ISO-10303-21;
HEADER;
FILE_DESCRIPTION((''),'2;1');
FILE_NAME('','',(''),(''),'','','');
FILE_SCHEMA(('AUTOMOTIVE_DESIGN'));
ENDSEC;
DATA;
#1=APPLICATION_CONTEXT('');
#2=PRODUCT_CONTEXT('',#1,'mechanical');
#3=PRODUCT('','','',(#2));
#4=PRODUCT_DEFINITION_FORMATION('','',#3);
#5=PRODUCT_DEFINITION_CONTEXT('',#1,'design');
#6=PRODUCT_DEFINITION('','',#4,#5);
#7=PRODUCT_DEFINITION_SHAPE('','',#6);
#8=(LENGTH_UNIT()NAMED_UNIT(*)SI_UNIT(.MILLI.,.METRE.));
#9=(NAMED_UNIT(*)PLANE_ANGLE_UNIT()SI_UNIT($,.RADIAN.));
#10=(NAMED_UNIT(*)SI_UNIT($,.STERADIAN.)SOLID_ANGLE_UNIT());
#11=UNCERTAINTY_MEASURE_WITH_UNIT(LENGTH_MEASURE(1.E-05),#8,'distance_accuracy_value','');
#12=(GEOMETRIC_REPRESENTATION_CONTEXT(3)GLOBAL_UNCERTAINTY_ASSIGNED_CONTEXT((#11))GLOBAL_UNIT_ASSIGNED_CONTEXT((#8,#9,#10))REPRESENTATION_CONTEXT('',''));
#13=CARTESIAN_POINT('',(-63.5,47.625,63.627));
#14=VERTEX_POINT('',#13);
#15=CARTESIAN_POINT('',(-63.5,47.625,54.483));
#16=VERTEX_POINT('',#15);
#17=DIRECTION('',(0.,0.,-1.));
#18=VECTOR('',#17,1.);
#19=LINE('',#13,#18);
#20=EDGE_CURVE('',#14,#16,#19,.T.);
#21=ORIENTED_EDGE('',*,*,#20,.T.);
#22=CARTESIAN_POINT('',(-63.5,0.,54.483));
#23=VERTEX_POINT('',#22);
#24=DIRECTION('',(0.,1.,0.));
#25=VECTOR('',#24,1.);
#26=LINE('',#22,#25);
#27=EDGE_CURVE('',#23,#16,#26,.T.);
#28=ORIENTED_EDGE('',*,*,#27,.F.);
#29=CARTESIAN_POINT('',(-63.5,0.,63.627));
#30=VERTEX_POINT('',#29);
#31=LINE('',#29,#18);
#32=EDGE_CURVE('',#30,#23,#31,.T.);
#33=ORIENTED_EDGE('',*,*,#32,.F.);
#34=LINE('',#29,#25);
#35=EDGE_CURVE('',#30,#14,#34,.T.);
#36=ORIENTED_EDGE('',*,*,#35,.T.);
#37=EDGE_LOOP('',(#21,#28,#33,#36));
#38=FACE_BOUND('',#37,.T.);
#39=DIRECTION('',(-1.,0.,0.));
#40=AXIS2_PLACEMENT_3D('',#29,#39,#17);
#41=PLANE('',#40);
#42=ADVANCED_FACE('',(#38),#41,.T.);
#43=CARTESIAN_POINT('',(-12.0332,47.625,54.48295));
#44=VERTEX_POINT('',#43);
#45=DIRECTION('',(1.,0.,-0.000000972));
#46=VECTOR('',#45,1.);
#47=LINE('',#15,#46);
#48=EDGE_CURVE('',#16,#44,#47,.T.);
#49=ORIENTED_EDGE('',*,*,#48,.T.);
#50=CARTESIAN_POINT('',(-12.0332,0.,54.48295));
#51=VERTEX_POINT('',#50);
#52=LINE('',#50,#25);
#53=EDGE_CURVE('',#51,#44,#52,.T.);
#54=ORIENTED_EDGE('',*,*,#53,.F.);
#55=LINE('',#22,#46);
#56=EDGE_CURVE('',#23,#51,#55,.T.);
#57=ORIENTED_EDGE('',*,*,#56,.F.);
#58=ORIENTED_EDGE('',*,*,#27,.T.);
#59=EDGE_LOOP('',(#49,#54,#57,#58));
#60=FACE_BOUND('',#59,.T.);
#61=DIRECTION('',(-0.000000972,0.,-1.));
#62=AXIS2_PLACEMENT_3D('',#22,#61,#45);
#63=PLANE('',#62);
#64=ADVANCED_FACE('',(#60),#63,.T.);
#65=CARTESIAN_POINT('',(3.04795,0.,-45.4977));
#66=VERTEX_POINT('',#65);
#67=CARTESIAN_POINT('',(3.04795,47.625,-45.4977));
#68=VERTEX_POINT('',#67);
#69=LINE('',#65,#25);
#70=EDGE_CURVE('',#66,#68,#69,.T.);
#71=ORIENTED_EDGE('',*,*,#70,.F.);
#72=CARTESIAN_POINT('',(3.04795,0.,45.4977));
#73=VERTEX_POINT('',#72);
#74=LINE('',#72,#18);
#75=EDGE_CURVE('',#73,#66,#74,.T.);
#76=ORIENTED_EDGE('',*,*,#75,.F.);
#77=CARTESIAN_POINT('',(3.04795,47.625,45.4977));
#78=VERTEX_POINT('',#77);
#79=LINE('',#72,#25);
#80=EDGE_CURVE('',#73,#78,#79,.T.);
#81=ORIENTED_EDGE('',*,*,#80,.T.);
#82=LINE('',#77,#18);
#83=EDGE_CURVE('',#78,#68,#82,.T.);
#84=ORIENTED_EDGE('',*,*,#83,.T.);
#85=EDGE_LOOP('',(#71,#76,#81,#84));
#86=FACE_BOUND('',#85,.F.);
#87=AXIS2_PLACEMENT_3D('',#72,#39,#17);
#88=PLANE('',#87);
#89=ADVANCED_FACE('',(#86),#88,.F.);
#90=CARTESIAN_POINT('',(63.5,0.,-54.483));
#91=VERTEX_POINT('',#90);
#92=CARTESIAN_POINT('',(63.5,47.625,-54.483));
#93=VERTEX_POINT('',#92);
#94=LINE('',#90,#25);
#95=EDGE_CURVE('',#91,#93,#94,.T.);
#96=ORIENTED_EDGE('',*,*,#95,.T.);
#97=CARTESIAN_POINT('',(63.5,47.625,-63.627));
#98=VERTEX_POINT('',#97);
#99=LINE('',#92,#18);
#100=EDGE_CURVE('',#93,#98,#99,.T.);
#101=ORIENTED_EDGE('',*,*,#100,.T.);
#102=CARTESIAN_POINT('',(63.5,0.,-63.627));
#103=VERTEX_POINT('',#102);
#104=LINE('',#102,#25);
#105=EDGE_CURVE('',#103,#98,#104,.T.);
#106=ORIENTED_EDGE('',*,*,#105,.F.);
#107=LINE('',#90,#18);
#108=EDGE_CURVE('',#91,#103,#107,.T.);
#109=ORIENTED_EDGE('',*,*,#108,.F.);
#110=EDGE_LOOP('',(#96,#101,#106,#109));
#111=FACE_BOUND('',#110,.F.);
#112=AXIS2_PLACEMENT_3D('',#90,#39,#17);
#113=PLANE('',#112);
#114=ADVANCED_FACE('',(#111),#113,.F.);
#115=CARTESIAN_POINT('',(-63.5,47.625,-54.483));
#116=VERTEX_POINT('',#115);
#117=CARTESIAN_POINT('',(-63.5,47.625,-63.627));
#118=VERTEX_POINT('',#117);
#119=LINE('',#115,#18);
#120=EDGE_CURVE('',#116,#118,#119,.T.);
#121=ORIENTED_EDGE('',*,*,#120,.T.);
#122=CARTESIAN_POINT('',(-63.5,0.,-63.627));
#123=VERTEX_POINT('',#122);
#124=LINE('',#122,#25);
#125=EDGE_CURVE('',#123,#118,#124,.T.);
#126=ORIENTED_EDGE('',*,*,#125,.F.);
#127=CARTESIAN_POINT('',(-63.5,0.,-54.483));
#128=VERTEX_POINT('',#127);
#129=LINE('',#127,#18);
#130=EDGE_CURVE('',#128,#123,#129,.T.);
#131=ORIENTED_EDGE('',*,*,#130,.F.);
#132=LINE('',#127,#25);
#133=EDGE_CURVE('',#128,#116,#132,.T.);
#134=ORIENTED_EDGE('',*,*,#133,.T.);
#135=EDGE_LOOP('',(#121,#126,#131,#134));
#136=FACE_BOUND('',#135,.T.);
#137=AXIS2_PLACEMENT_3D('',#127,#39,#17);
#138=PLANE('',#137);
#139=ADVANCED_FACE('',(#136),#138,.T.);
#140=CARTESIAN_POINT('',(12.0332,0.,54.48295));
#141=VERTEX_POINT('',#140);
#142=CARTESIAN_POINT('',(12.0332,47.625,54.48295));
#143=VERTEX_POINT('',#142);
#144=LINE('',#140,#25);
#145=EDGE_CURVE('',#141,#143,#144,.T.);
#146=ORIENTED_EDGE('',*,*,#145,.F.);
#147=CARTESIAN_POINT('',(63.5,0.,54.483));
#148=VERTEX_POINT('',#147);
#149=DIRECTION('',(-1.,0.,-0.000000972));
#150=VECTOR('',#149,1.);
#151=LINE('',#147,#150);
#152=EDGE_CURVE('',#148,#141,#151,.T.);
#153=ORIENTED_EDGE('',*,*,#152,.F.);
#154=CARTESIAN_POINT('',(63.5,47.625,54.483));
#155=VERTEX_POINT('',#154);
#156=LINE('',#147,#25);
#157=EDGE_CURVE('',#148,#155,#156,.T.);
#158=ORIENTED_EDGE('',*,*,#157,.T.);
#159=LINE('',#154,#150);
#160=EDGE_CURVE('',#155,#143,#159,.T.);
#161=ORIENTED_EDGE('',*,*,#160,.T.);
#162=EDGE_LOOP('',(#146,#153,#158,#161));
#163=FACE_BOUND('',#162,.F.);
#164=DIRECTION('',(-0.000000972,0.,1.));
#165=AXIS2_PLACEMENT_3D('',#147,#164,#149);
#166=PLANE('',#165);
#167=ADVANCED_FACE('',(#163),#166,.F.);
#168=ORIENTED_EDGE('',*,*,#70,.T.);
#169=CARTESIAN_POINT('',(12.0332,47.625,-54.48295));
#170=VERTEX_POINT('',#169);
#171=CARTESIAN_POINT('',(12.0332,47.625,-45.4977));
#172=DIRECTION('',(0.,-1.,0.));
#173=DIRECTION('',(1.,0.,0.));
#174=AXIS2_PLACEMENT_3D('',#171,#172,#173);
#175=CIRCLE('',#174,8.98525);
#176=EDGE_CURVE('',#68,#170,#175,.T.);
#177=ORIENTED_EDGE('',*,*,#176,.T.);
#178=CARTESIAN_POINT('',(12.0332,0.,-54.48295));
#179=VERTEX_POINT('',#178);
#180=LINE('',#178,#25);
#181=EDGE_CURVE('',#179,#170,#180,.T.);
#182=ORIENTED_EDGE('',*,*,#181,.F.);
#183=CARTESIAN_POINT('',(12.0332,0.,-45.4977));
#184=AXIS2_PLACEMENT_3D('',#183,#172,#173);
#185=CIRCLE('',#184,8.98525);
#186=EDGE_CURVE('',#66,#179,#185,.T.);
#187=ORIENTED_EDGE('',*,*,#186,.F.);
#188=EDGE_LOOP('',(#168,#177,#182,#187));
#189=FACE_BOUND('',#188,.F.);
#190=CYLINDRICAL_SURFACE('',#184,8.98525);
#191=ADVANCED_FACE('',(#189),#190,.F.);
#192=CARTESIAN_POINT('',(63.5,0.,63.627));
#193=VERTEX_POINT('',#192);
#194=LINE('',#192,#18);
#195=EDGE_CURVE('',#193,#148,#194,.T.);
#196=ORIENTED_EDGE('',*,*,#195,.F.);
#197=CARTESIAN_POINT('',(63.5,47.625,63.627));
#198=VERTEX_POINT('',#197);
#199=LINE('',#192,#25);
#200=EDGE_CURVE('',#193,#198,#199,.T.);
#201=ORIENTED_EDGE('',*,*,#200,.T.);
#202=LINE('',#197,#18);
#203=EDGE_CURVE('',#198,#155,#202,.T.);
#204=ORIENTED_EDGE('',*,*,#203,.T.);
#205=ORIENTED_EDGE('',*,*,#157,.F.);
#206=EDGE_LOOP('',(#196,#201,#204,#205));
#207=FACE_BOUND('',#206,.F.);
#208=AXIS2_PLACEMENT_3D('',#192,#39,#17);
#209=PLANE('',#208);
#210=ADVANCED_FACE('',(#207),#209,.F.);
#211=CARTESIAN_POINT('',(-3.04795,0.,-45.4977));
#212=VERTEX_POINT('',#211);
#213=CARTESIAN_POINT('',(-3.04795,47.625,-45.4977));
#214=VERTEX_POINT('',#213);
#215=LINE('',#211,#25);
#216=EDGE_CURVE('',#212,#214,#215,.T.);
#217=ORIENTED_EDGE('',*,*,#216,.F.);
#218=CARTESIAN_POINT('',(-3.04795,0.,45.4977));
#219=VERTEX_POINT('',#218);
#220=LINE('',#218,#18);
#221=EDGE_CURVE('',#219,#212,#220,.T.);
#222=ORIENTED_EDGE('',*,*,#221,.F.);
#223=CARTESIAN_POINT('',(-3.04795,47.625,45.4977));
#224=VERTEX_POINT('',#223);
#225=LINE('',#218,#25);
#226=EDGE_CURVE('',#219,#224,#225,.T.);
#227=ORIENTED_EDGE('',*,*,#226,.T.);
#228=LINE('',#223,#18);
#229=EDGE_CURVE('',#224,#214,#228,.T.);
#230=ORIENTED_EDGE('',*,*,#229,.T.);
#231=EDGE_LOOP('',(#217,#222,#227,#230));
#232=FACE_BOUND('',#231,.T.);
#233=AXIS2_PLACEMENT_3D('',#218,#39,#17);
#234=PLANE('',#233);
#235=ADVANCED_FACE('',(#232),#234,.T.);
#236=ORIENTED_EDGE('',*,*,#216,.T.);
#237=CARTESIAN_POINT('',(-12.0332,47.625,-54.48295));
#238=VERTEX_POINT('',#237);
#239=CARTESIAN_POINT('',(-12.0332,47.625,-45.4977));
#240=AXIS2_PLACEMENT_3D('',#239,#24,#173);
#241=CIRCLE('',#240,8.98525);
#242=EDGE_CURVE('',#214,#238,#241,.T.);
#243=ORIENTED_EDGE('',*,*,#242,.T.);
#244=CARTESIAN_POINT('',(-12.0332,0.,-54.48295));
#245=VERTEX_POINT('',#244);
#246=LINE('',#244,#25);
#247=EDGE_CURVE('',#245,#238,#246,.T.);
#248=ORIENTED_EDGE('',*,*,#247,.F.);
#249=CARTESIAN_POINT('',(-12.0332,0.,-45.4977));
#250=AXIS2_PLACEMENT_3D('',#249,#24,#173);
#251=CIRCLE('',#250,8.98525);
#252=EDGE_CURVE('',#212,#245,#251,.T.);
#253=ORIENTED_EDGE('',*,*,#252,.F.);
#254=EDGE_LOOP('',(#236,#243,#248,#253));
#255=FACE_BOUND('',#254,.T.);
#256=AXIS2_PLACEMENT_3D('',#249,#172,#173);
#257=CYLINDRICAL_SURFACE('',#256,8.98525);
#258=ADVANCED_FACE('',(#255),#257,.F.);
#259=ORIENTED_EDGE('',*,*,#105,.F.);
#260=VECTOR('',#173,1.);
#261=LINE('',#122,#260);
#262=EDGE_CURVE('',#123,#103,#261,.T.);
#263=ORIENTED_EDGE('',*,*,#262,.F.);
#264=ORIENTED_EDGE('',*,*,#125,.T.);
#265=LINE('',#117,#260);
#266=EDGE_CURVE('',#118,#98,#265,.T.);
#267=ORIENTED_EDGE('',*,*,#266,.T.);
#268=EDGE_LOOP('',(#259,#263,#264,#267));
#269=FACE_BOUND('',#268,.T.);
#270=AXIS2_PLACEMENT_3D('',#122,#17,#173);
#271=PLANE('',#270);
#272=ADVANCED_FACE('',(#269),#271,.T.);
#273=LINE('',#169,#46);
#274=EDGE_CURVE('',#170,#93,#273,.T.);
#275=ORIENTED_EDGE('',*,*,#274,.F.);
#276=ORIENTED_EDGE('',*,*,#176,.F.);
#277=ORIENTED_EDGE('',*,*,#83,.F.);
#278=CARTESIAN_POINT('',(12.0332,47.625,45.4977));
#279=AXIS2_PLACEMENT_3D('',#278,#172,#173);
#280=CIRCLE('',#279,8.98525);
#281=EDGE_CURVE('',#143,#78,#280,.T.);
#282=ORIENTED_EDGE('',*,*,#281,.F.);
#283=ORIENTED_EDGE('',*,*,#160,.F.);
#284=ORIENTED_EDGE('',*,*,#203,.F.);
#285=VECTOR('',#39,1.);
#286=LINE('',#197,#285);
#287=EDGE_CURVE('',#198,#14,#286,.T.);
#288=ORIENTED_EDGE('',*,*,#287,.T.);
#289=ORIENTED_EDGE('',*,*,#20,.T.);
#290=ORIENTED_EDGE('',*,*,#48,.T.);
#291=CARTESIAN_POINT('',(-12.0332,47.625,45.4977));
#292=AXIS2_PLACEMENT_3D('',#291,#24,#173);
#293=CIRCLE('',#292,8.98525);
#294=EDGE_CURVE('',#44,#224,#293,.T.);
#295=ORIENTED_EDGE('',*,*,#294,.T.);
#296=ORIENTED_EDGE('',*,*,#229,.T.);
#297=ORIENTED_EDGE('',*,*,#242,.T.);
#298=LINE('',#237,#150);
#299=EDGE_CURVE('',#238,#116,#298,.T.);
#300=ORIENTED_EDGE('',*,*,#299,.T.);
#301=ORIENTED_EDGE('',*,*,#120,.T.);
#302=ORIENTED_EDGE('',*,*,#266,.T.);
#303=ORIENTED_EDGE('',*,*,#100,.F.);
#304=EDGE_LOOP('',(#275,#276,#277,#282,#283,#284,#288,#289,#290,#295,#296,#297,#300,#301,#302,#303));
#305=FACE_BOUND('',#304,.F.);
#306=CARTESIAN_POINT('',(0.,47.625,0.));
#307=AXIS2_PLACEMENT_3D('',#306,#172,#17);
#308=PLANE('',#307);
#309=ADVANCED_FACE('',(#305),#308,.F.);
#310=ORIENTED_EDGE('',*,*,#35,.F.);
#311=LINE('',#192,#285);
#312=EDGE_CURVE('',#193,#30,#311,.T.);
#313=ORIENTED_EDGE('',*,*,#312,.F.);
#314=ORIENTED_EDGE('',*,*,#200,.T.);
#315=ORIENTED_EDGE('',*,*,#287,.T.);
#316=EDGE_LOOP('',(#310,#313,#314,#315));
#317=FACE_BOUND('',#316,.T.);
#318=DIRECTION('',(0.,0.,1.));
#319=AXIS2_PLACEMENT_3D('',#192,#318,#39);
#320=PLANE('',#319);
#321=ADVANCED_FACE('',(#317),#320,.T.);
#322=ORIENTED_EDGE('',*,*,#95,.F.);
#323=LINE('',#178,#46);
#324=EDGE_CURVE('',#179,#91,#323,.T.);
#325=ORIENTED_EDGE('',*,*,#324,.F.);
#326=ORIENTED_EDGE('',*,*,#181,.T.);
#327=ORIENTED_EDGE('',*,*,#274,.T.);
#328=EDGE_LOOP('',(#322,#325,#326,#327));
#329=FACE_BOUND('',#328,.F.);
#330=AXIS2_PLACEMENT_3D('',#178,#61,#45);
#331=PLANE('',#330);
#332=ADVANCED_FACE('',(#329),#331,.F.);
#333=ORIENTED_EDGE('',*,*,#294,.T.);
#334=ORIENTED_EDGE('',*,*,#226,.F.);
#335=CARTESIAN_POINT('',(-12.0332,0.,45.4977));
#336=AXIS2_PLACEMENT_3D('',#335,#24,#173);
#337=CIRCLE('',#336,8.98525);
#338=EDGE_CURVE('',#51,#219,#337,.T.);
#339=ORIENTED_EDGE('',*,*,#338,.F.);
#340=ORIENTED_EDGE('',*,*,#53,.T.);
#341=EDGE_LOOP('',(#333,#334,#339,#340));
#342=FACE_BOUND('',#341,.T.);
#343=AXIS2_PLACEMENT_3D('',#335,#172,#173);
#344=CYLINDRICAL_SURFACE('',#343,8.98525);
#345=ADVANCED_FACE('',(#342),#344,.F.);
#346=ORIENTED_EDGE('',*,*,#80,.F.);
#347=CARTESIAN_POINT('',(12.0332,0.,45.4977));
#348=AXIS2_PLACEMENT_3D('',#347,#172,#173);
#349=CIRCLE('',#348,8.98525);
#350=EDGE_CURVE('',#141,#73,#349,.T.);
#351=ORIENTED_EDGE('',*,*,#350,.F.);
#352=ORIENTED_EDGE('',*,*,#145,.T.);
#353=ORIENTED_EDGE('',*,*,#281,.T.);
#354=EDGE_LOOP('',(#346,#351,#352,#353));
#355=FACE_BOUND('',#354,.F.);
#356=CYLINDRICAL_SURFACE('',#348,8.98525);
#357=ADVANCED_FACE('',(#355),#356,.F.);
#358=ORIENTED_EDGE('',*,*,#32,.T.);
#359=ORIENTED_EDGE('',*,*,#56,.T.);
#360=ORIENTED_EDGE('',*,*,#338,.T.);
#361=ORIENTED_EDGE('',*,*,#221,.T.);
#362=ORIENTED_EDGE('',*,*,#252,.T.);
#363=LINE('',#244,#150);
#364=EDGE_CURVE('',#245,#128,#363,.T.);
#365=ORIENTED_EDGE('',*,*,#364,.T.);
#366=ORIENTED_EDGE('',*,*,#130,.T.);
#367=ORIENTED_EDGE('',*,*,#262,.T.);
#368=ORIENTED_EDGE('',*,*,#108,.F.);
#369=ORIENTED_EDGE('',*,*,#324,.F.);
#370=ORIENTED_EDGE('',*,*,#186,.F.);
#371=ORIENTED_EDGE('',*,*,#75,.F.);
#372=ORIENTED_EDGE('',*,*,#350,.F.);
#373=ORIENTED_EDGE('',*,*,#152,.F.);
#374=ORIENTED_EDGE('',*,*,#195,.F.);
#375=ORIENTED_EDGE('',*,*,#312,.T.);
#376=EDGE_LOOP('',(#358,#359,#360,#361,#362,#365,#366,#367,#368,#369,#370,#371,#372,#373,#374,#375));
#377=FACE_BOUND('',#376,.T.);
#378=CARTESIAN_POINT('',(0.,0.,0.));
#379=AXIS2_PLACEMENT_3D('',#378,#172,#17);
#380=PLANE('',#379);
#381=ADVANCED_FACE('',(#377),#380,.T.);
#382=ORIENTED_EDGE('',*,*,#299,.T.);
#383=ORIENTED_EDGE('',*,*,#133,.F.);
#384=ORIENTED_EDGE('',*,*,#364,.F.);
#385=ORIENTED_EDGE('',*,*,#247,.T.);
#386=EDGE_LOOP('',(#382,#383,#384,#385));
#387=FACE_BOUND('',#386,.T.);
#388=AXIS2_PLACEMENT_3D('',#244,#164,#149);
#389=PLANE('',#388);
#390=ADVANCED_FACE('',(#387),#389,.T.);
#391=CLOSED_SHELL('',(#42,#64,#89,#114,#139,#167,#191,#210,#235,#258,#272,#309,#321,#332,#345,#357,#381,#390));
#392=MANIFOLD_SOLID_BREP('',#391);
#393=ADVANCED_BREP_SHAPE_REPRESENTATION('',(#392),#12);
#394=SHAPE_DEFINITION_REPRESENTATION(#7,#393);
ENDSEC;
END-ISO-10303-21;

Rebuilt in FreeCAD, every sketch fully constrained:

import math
import FreeCAD as App
import Part
import Sketcher
from FreeCAD import Vector
Q = App.Units.Quantity

doc = App.newDocument("Part")
params = doc.addObject("Spreadsheet::Sheet", "Params")
for row, (alias, value) in enumerate([
    ("sketch1_width", "5 in"),
    ("sketch1_height", "0.36 in"),
    ("pad1_length", "1.875 in"),
], start=1):
    params.set(f"A{row}", alias)
    params.set(f"B{row}", "=" + value)
    params.setAlias(f"B{row}", alias)

body = doc.addObject("PartDesign::Body", "Body")

# Sketch on XZ plane
sketch1 = body.newObject("Sketcher::SketchObject", "Sketch")
sketch1.AttachmentSupport = (doc.getObject("XZ_Plane"), [""])
sketch1.MapMode = "FlatFace"
sketch1.addGeometry([
    Part.LineSegment(Vector(64, 54, 0), Vector(64, 64, 0)),  # 0
    Part.LineSegment(Vector(64, 64, 0), Vector(-64, 64, 0)),  # 1
    Part.LineSegment(Vector(-64, 64, 0), Vector(-64, 54, 0)),  # 2
    Part.LineSegment(Vector(-64, 54, 0), Vector(-12, 54, 0)),  # 3
    Part.ArcOfCircle(Part.Circle(Vector(-12, 45, 0), Vector(0, 0, 1), 9), math.radians(0), math.radians(90)),  # 4
    Part.LineSegment(Vector(-3, 45, 0), Vector(-3, -45, 0)),  # 5
    Part.ArcOfCircle(Part.Circle(Vector(-12, -45, 0), Vector(0, 0, 1), 9), math.radians(-90), math.radians(0)),  # 6
    Part.LineSegment(Vector(-12, -54, 0), Vector(-64, -54, 0)),  # 7
    Part.LineSegment(Vector(-64, -54, 0), Vector(-64, -64, 0)),  # 8
    Part.LineSegment(Vector(-64, -64, 0), Vector(64, -64, 0)),  # 9
    Part.LineSegment(Vector(64, -64, 0), Vector(64, -54, 0)),  # 10
    Part.LineSegment(Vector(64, -54, 0), Vector(12, -54, 0)),  # 11
    Part.ArcOfCircle(Part.Circle(Vector(12, -45, 0), Vector(0, 0, 1), 9), math.radians(180), math.radians(270)),  # 12
    Part.LineSegment(Vector(3, -45, 0), Vector(3, 45, 0)),  # 13
    Part.ArcOfCircle(Part.Circle(Vector(12, 45, 0), Vector(0, 0, 1), 9), math.radians(90), math.radians(180)),  # 14
    Part.LineSegment(Vector(12, 54, 0), Vector(64, 54, 0)),  # 15
], False)
sketch1.addConstraint([
    Sketcher.Constraint("Coincident", 0, 2, 1, 1),
    Sketcher.Constraint("Coincident", 1, 2, 2, 1),
    Sketcher.Constraint("Coincident", 2, 2, 3, 1),
    Sketcher.Constraint("Tangent", 3, 2, 4, 2),
    Sketcher.Constraint("Tangent", 4, 1, 5, 1),
    Sketcher.Constraint("Tangent", 5, 2, 6, 2),
    Sketcher.Constraint("Tangent", 6, 1, 7, 1),
    Sketcher.Constraint("Coincident", 7, 2, 8, 1),
    Sketcher.Constraint("Coincident", 8, 2, 9, 1),
    Sketcher.Constraint("Coincident", 9, 2, 10, 1),
    Sketcher.Constraint("Coincident", 10, 2, 11, 1),
    Sketcher.Constraint("Tangent", 11, 2, 12, 2),
    Sketcher.Constraint("Tangent", 12, 1, 13, 1),
    Sketcher.Constraint("Tangent", 13, 2, 14, 2),
    Sketcher.Constraint("Tangent", 14, 1, 15, 1),
    Sketcher.Constraint("Coincident", 15, 2, 0, 1),
    Sketcher.Constraint("Vertical", 0),
    Sketcher.Constraint("Horizontal", 1),
    Sketcher.Constraint("Vertical", 2),
    Sketcher.Constraint("Horizontal", 3),
    Sketcher.Constraint("Vertical", 5),
    Sketcher.Constraint("Horizontal", 7),
    Sketcher.Constraint("Vertical", 8),
    Sketcher.Constraint("Horizontal", 9),
    Sketcher.Constraint("Vertical", 10),
    Sketcher.Constraint("Horizontal", 11),
    Sketcher.Constraint("Vertical", 13),
    Sketcher.Constraint("Horizontal", 15),
    Sketcher.Constraint("Equal", 4, 6),
    Sketcher.Constraint("Equal", 6, 12),
    Sketcher.Constraint("Equal", 12, 14),
    Sketcher.Constraint("Symmetric", 4, 3, 12, 3, -1, 1),
    Sketcher.Constraint("Symmetric", 0, 2, 8, 2, -1, 1),
    Sketcher.Constraint("Symmetric", 7, 2, 10, 2, -2),
    Sketcher.Constraint("Symmetric", 2, 2, 15, 2, -2),
    Sketcher.Constraint("DistanceX", 1, 2, 1, 1, Q("5 in")),
    Sketcher.Constraint("DistanceY", 0, 1, 0, 2, Q("0.36 in")),
    Sketcher.Constraint("DistanceX", 4, 1, -1, 1, Q("0.12 in")),
    Sketcher.Constraint("Radius", 4, 8.9853),
    Sketcher.Constraint("DistanceY", 7, 2, 2, 2, Q("4.29 in")),
])
sketch1.setExpression("Constraints[35]", "Params.sketch1_width")
sketch1.setExpression("Constraints[36]", "Params.sketch1_height")
pad1 = body.newObject("PartDesign::Pad", "Pad")
pad1.Profile = sketch1
pad1.setExpression("Length", "Params.pad1_length")
pad1.Reversed = True

doc.recompute()
